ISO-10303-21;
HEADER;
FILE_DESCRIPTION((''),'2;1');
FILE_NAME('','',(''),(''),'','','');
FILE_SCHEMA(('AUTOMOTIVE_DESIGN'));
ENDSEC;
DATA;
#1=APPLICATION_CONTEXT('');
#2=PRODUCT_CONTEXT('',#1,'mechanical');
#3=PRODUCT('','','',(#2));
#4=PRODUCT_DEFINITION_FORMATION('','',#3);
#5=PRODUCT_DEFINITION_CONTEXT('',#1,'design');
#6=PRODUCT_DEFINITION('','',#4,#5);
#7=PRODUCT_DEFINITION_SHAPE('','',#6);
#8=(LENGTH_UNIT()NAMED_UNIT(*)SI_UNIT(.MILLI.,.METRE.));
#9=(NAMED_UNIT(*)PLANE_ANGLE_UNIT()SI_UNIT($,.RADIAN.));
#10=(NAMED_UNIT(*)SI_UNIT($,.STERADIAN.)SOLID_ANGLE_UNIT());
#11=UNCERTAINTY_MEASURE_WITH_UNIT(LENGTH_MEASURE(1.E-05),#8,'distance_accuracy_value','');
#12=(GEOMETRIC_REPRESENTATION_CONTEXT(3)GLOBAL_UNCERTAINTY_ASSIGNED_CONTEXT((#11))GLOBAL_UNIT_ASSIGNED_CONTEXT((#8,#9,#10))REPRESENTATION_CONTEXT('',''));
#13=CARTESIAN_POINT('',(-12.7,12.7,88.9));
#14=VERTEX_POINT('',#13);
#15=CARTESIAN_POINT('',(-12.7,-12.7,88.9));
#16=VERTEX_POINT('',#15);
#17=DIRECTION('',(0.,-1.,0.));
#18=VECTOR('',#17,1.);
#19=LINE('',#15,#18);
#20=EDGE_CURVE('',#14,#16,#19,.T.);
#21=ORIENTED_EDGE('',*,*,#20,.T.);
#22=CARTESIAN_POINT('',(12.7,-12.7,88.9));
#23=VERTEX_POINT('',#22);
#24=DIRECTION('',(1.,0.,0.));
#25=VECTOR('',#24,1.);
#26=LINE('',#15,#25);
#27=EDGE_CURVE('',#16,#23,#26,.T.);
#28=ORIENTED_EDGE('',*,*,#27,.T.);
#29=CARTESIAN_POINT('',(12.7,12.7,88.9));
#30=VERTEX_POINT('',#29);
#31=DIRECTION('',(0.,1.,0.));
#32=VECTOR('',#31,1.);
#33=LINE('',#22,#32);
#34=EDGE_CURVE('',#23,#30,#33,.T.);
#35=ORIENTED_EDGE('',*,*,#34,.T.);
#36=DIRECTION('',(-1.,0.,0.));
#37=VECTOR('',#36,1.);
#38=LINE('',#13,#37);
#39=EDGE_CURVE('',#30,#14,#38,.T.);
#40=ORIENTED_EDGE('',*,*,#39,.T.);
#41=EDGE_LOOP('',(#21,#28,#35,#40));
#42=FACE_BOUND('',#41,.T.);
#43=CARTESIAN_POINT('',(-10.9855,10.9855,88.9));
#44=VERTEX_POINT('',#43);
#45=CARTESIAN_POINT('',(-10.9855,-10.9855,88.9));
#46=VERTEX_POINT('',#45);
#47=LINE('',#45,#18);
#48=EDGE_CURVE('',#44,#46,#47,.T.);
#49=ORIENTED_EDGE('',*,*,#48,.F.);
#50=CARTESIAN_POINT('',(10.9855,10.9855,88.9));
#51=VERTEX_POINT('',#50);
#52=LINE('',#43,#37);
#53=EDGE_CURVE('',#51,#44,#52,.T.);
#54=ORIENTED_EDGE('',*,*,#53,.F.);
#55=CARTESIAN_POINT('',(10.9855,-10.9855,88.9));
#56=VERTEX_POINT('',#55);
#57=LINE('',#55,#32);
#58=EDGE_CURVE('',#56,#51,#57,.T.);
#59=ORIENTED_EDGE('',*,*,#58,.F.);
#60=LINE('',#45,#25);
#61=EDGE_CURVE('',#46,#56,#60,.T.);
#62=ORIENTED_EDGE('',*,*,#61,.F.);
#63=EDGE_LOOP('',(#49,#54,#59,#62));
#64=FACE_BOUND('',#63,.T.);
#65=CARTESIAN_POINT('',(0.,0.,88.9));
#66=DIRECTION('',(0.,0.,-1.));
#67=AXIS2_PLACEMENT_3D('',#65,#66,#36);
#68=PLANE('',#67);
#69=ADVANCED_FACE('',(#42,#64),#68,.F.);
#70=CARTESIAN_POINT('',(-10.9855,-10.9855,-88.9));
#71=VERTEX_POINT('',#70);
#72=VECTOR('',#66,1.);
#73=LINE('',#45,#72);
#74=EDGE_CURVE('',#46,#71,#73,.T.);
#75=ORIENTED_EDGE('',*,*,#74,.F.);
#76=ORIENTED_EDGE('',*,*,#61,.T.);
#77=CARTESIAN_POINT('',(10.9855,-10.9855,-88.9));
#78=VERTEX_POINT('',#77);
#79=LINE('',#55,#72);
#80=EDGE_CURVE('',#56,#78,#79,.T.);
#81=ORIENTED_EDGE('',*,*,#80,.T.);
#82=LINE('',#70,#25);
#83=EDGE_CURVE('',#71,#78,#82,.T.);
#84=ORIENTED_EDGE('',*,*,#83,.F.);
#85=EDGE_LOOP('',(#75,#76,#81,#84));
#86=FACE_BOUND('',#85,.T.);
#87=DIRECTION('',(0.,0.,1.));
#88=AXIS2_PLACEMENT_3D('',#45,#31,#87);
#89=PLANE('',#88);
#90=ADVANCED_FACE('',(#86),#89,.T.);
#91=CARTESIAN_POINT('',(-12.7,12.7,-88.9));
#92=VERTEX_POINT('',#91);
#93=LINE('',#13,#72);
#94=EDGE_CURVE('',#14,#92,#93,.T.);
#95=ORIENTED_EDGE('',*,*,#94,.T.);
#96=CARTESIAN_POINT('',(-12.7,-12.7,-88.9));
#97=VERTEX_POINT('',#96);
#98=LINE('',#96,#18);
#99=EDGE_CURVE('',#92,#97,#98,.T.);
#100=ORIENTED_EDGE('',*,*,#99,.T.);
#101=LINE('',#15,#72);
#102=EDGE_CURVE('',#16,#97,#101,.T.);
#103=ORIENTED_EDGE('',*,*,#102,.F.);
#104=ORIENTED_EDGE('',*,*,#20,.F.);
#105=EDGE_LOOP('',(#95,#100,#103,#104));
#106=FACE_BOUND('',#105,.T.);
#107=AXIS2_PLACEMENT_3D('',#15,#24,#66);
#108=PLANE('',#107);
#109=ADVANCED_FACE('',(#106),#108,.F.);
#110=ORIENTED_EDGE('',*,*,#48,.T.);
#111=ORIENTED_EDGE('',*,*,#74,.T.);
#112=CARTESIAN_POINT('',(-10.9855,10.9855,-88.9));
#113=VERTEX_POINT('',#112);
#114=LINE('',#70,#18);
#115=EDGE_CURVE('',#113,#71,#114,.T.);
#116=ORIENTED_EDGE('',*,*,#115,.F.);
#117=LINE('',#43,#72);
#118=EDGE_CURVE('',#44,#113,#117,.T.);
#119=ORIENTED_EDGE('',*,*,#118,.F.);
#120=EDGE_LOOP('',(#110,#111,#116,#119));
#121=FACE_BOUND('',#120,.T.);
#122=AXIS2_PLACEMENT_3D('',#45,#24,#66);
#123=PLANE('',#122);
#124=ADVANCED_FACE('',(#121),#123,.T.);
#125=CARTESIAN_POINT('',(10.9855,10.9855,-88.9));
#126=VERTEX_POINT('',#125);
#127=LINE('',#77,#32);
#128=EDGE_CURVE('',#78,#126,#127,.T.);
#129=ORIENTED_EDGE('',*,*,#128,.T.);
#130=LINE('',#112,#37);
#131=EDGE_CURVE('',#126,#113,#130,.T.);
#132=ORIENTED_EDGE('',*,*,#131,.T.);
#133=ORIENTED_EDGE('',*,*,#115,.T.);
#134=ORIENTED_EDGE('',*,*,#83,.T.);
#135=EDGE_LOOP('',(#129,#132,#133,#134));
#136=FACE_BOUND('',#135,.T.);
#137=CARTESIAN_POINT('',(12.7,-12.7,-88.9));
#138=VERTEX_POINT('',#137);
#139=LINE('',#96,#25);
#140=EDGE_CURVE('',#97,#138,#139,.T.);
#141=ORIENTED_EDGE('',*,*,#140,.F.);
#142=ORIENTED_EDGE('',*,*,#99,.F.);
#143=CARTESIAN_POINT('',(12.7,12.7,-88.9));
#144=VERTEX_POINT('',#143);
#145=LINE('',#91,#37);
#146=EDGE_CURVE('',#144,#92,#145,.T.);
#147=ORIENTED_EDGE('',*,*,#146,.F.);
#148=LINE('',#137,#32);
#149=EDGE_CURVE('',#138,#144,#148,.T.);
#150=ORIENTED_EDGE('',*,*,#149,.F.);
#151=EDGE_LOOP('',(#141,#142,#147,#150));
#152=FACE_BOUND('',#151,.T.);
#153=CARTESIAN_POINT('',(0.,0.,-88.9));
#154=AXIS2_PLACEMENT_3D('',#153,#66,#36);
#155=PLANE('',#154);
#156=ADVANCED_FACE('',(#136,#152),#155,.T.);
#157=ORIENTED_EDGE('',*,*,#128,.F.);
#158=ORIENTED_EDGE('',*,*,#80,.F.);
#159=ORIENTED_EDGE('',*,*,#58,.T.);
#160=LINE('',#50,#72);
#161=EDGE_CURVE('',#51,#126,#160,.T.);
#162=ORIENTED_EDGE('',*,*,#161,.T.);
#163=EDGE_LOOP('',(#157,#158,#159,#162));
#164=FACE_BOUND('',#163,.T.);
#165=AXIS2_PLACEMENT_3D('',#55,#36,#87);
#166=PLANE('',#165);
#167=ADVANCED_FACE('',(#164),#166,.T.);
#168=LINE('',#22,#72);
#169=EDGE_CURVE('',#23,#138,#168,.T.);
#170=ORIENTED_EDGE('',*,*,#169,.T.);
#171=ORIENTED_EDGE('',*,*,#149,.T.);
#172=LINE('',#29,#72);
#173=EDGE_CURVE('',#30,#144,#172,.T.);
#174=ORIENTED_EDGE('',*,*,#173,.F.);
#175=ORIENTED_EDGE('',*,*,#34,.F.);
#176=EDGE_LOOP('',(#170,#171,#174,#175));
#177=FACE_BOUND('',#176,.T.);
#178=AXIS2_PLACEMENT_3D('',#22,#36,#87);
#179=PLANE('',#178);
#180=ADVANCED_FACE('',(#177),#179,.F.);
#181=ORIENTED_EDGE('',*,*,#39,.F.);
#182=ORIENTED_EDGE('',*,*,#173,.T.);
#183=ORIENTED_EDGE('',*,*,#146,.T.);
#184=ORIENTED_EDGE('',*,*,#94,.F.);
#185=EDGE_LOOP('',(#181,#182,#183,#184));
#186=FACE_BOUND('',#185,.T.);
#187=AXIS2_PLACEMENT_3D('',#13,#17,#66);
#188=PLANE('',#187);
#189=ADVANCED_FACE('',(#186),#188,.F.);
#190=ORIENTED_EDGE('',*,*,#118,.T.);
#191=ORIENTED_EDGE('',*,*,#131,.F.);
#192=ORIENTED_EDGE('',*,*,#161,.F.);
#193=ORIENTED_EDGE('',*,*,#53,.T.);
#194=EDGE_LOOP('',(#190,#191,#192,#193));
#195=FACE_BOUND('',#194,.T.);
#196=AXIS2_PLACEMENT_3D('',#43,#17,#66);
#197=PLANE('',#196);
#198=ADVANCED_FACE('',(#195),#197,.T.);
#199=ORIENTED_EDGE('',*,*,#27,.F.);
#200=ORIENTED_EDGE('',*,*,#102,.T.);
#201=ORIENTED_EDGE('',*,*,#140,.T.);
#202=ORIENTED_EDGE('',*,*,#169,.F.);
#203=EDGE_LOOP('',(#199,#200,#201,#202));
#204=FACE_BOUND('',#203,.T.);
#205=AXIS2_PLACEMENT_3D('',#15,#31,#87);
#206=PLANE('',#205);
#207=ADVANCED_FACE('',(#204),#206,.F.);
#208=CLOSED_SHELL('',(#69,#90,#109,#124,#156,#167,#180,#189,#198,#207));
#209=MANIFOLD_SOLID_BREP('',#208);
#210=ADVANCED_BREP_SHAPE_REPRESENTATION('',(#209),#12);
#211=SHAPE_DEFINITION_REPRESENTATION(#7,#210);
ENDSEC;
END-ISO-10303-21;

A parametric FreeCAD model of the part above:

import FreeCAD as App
import Part
import Sketcher
from FreeCAD import Vector
Q = App.Units.Quantity

doc = App.newDocument("Part")
body = doc.addObject("PartDesign::Body", "Body")

# Sketch on XY plane
sketch1 = body.newObject("Sketcher::SketchObject", "Sketch")
sketch1.AttachmentSupport = (doc.getObject("XY_Plane"), [""])
sketch1.MapMode = "FlatFace"
sketch1.addGeometry([
    Part.LineSegment(Vector(-12.7, 12.7, 0), Vector(-12.7, -12.7, 0)),  # 0
    Part.LineSegment(Vector(-12.7, -12.7, 0), Vector(12.7, -12.7, 0)),  # 1
    Part.LineSegment(Vector(12.7, -12.7, 0), Vector(12.7, 12.7, 0)),  # 2
    Part.LineSegment(Vector(12.7, 12.7, 0), Vector(-12.7, 12.7, 0)),  # 3
    Part.LineSegment(Vector(10.9855, -10.9855, 0), Vector(-10.9855, -10.9855, 0)),  # 4
    Part.LineSegment(Vector(-10.9855, -10.9855, 0), Vector(-10.9855, 10.9855, 0)),  # 5
    Part.LineSegment(Vector(-10.9855, 10.9855, 0), Vector(10.9855, 10.9855, 0)),  # 6
    Part.LineSegment(Vector(10.9855, 10.9855, 0), Vector(10.9855, -10.9855, 0)),  # 7
], False)
sketch1.addConstraint([
    Sketcher.Constraint("Coincident", 0, 2, 1, 1),
    Sketcher.Constraint("Coincident", 1, 2, 2, 1),
    Sketcher.Constraint("Coincident", 2, 2, 3, 1),
    Sketcher.Constraint("Coincident", 3, 2, 0, 1),
    Sketcher.Constraint("Coincident", 4, 2, 5, 1),
    Sketcher.Constraint("Coincident", 5, 2, 6, 1),
    Sketcher.Constraint("Coincident", 6, 2, 7, 1),
    Sketcher.Constraint("Coincident", 7, 2, 4, 1),
    Sketcher.Constraint("Vertical", 0),
    Sketcher.Constraint("Horizontal", 1),
    Sketcher.Constraint("Vertical", 2),
    Sketcher.Constraint("Horizontal", 3),
    Sketcher.Constraint("Horizontal", 4),
    Sketcher.Constraint("Vertical", 5),
    Sketcher.Constraint("Horizontal", 6),
    Sketcher.Constraint("Vertical", 7),
    Sketcher.Constraint("Symmetric", 0, 2, 2, 2, -1, 1),
    Sketcher.Constraint("Symmetric", 4, 2, 6, 2, -1, 1),
    Sketcher.Constraint("Equal", 3, 0),
    Sketcher.Constraint("Equal", 6, 5),
    Sketcher.Constraint("DistanceX", 1, 1, 1, 2, Q("1 in")),
    Sketcher.Constraint("DistanceX", 4, 2, 4, 1, Q("0.865 in")),
])
pad1 = body.newObject("PartDesign::Pad", "Pad")
pad1.Profile = sketch1
pad1.Length = Q("7 in")
pad1.Midplane = True

doc.recompute()
